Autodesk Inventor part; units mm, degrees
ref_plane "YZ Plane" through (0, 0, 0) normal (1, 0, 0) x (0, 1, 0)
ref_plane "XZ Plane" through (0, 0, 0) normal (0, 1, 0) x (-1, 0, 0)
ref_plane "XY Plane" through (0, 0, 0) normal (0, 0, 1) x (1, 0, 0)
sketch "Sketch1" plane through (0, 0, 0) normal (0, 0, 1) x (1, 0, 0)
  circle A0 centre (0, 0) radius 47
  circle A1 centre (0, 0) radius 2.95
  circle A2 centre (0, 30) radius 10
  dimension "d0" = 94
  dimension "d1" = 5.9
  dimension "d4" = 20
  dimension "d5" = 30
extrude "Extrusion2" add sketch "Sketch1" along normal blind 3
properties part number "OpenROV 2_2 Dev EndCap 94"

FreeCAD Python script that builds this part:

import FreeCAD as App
import Part
import Sketcher
from FreeCAD import Vector

doc = App.newDocument("Part")
params = doc.addObject("Spreadsheet::Sheet", "Params")
for row, (alias, value) in enumerate([
    ("sketch1_diameter", "94 mm"),
    ("sketch1_diameter2", "20 mm"),
    ("sketch1_diameter3", "5.9 mm"),
    ("pad1_length", "3 mm"),
], start=1):
    params.set(f"A{row}", alias)
    params.set(f"B{row}", "=" + value)
    params.setAlias(f"B{row}", alias)

body = doc.addObject("PartDesign::Body", "Body")

# Sketch on XY plane
sketch1 = body.newObject("Sketcher::SketchObject", "Sketch")
sketch1.AttachmentSupport = (doc.getObject("XY_Plane"), [""])
sketch1.MapMode = "FlatFace"
sketch1.addGeometry([
    Part.Circle(Vector(0, 0, 0), Vector(0, 0, 1), 47),
    Part.Circle(Vector(0, 0, 0), Vector(0, 0, 1), 3),
    Part.Circle(Vector(0, 30, 0), Vector(0, 0, 1), 10),
], False)
sketch1.addConstraint([
    Sketcher.Constraint("Coincident", 0, 3, -1, 1),
    Sketcher.Constraint("Coincident", 1, 3, -1, 1),
    Sketcher.Constraint("PointOnObject", 2, 3, -2),
    Sketcher.Constraint("Diameter", 0, 94.0),
    Sketcher.Constraint("Diameter", 2, 20.0),
    Sketcher.Constraint("Diameter", 1, 5.9),
    Sketcher.Constraint("DistanceY", -1, 1, 2, 3, 30.0),
])
sketch1.setExpression("Constraints[3]", "Params.sketch1_diameter")
sketch1.setExpression("Constraints[4]", "Params.sketch1_diameter2")
sketch1.setExpression("Constraints[5]", "Params.sketch1_diameter3")
pad1 = body.newObject("PartDesign::Pad", "Pad")
pad1.Profile = sketch1
pad1.setExpression("Length", "Params.pad1_length")

doc.recompute()
